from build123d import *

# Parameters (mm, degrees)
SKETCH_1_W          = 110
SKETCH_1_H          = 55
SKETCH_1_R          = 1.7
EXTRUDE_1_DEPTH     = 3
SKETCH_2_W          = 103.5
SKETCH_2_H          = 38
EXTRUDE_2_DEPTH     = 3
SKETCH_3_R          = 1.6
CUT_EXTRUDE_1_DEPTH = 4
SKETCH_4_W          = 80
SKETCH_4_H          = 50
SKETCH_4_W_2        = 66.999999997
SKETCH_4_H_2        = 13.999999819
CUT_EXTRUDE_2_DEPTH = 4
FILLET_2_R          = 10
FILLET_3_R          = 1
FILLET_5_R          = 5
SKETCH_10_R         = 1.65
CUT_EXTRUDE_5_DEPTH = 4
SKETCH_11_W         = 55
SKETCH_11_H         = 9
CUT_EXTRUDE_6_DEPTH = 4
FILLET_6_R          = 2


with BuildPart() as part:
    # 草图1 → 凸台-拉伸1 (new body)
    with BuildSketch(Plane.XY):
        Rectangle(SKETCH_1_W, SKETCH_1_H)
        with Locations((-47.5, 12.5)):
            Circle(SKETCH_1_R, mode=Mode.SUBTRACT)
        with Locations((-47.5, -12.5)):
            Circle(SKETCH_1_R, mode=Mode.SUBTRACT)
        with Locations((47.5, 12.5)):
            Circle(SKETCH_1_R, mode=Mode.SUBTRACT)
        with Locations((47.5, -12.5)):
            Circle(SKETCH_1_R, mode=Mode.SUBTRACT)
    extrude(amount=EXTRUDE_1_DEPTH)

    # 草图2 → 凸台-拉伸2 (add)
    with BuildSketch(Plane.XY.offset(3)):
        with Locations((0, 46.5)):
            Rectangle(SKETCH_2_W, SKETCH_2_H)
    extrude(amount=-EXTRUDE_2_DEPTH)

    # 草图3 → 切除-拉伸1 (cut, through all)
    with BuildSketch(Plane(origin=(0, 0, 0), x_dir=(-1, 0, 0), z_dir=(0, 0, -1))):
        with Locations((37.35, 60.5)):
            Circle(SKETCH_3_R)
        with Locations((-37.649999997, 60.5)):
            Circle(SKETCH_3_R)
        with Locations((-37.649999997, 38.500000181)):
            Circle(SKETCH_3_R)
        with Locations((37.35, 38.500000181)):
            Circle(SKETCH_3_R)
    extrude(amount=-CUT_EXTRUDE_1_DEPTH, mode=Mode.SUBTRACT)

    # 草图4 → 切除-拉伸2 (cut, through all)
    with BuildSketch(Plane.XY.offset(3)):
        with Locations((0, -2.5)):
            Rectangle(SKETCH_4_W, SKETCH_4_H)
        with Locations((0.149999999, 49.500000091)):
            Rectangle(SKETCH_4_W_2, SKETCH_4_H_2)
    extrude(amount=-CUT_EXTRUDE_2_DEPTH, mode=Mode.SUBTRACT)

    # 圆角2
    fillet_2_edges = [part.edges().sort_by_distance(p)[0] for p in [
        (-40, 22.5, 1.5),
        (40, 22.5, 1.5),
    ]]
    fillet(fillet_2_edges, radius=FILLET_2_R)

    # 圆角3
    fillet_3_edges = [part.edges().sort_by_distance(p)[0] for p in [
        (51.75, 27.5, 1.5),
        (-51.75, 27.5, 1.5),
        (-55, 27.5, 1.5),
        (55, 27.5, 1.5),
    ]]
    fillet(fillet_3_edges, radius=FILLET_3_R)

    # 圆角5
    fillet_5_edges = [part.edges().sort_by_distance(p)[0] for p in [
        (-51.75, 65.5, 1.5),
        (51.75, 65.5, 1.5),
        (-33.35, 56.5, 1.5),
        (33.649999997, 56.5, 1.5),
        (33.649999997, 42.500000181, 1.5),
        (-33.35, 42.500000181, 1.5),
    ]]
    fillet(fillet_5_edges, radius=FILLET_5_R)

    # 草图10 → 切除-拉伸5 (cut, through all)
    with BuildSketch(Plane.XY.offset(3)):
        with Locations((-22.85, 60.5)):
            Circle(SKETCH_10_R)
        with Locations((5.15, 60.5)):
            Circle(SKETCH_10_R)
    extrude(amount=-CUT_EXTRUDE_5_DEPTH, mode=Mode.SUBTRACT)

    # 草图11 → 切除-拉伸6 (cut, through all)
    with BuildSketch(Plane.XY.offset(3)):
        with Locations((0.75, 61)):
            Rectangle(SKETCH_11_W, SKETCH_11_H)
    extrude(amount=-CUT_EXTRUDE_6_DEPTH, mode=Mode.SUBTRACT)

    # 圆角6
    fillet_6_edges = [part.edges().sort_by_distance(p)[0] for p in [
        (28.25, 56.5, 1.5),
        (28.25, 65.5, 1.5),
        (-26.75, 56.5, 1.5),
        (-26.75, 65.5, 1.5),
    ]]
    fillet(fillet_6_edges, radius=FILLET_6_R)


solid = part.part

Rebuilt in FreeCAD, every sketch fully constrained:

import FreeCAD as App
import Part
import Sketcher
from FreeCAD import Vector


def edges_at(feature, points):
    """Names of the edges that pass closest to the given points."""
    edges = feature.Shape.Edges
    near = lambda p: min(range(len(edges)), key=lambda i: edges[i].distToShape(Part.Vertex(*p))[0])
    return sorted({f"Edge{near(p) + 1}" for p in points})


def add_polygon(sketch, points):
    """Adds a closed chain of lines whose ends are joined by coincident constraints."""
    first, n = sketch.GeometryCount, len(points)
    for a, b in zip(points, points[1:] + points[:1]):
        sketch.addGeometry(Part.LineSegment(App.Vector(*a, 0), App.Vector(*b, 0)), False)
    for i in range(n):
        sketch.addConstraint(Sketcher.Constraint("Coincident", first + i, 2, first + (i + 1) % n, 1))

doc = App.newDocument("Part")
body = doc.addObject("PartDesign::Body", "Body")

# Sketch on XY plane
sketch1 = body.newObject("Sketcher::SketchObject", "Sketch")
sketch1.AttachmentSupport = (doc.getObject("XY_Plane"), [""])
sketch1.MapMode = "FlatFace"
add_polygon(sketch1, [(-55, 27.5), (-55, -27.5), (55, -27.5), (55, 27.5)])  # lines 0-3
sketch1.addGeometry(Part.Circle(Vector(-47.5, -12.5, 0), Vector(0, 0, 1), 1.7), False)  # 4
sketch1.addGeometry(Part.Circle(Vector(47.5, -12.5, 0), Vector(0, 0, 1), 1.7), False)  # 5
sketch1.addGeometry(Part.Circle(Vector(-47.5, 12.5, 0), Vector(0, 0, 1), 1.7), False)  # 6
sketch1.addGeometry(Part.Circle(Vector(47.5, 12.5, 0), Vector(0, 0, 1), 1.7), False)  # 7
sketch1.addConstraint([
    Sketcher.Constraint("Vertical", 0),
    Sketcher.Constraint("Horizontal", 1),
    Sketcher.Constraint("Vertical", 2),
    Sketcher.Constraint("Horizontal", 3),
    Sketcher.Constraint("Equal", 4, 5),
    Sketcher.Constraint("Equal", 5, 6),
    Sketcher.Constraint("Equal", 6, 7),
    Sketcher.Constraint("Symmetric", 5, 3, 6, 3, -1, 1),
    Sketcher.Constraint("Symmetric", 4, 3, 7, 3, -1, 1),
    Sketcher.Constraint("Symmetric", 0, 2, 2, 2, -1, 1),
    Sketcher.Constraint("Symmetric", 4, 3, 5, 3, -2),
    Sketcher.Constraint("Diameter", 4, 3.4),
    Sketcher.Constraint("DistanceX", 1, 1, 1, 2, 110.0),
    Sketcher.Constraint("DistanceY", 0, 2, 0, 1, 55.0),
    Sketcher.Constraint("DistanceX", 4, 3, 5, 3, 95.0),
    Sketcher.Constraint("DistanceY", 4, 3, 6, 3, 25.0),
])
pad1 = body.newObject("PartDesign::Pad", "Pad")
pad1.Profile = sketch1
pad1.Length = 3

# Sketch on XY plane
sketch2 = body.newObject("Sketcher::SketchObject", "Sketch001")
sketch2.AttachmentSupport = (doc.getObject("XY_Plane"), [""])
sketch2.MapMode = "FlatFace"
sketch2.AttachmentOffset = App.Placement(Vector(0, 0, 3), App.Rotation())
add_polygon(sketch2, [(-52, 66), (-52, 28), (52, 28), (52, 66)])  # lines 0-3
sketch2.addConstraint([
    Sketcher.Constraint("Vertical", 0),
    Sketcher.Constraint("Horizontal", 1),
    Sketcher.Constraint("Vertical", 2),
    Sketcher.Constraint("Horizontal", 3),
    Sketcher.Constraint("DistanceY", 0, 2, 0, 1, 38.0),
    Sketcher.Constraint("DistanceX", 1, 1, 1, 2, 103.5),
    Sketcher.Constraint("DistanceY", -1, 1, 0, 2, 27.5),
    Sketcher.Constraint("DistanceX", 0, 2, -1, 1, 51.75),
])
pad2 = body.newObject("PartDesign::Pad", "Pad001")
pad2.Profile = sketch2
pad2.Length = 3
pad2.Reversed = True

# Sketch on XY plane
sketch3 = body.newObject("Sketcher::SketchObject", "Sketch002")
sketch3.AttachmentSupport = (doc.getObject("XY_Plane"), [""])
sketch3.MapMode = "FlatFace"
sketch3.addGeometry([
    Part.Circle(Vector(-37.4, 60.5, 0), Vector(0, 0, 1), 1.6),
    Part.Circle(Vector(37.6, 60.5, 0), Vector(0, 0, 1), 1.6),
    Part.Circle(Vector(37.6, 38.5, 0), Vector(0, 0, 1), 1.6),
    Part.Circle(Vector(-37.4, 38.5, 0), Vector(0, 0, 1), 1.6),
], False)
sketch3.addConstraint([
    Sketcher.Constraint("Equal", 0, 1),
    Sketcher.Constraint("Equal", 1, 2),
    Sketcher.Constraint("Equal", 2, 3),
    Sketcher.Constraint("Horizontal", 0, 3, 1, 3),
    Sketcher.Constraint("Horizontal", 2, 3, 3, 3),
    Sketcher.Constraint("Vertical", 1, 3, 2, 3),
    Sketcher.Constraint("Vertical", 0, 3, 3, 3),
    Sketcher.Constraint("Diameter", 0, 3.2),
    Sketcher.Constraint("DistanceX", 0, 3, 1, 3, 75.0),
    Sketcher.Constraint("DistanceY", 2, 3, 1, 3, 22.0),
    Sketcher.Constraint("DistanceY", -1, 1, 0, 3, 60.5),
    Sketcher.Constraint("DistanceX", 0, 3, -1, 1, 37.35),
])
pocket1 = body.newObject("PartDesign::Pocket", "Pocket")
pocket1.Profile = sketch3
pocket1.Type = "ThroughAll"
pocket1.Reversed = True

# Sketch on XY plane
sketch4 = body.newObject("Sketcher::SketchObject", "Sketch003")
sketch4.AttachmentSupport = (doc.getObject("XY_Plane"), [""])
sketch4.MapMode = "FlatFace"
sketch4.AttachmentOffset = App.Placement(Vector(0, 0, 3), App.Rotation())
add_polygon(sketch4, [(-40, 22), (-40, -28), (40, -28), (40, 22)])  # lines 0-3
add_polygon(sketch4, [(-33, 56), (-33, 43), (34, 43), (34, 56)])  # lines 4-7
sketch4.addConstraint([
    Sketcher.Constraint("Vertical", 0),
    Sketcher.Constraint("Horizontal", 1),
    Sketcher.Constraint("Vertical", 2),
    Sketcher.Constraint("Horizontal", 3),
    Sketcher.Constraint("Vertical", 4),
    Sketcher.Constraint("Horizontal", 5),
    Sketcher.Constraint("Vertical", 6),
    Sketcher.Constraint("Horizontal", 7),
    Sketcher.Constraint("DistanceX", 1, 1, 1, 2, 80.0),
    Sketcher.Constraint("DistanceX", 5, 1, 5, 2, 67.0),
    Sketcher.Constraint("DistanceY", 0, 2, 0, 1, 50.0),
    Sketcher.Constraint("DistanceY", 4, 2, 4, 1, 14.0),
    Sketcher.Constraint("DistanceX", 0, 2, -1, 1, 40.0),
    Sketcher.Constraint("DistanceY", 3, 2, 4, 2, 20.0),
    Sketcher.Constraint("DistanceY", 0, 2, -1, 1, 27.5),
    Sketcher.Constraint("DistanceX", 4, 2, -1, 1, 33.35),
])
pocket2 = body.newObject("PartDesign::Pocket", "Pocket001")
pocket2.Profile = sketch4
pocket2.Type = "ThroughAll"
doc.recompute()

fillet = body.newObject("PartDesign::Fillet", "Fillet")
fillet.Base = (pocket2, edges_at(pocket2, [(-40, 22.5, 1.5), (40, 22.5, 1.5)]))
fillet.Radius = 10
doc.recompute()

fillet2 = body.newObject("PartDesign::Fillet", "Fillet001")
fillet2.Base = (fillet, edges_at(fillet, [
    (51.75, 27.5, 1.5),
    (-51.75, 27.5, 1.5),
    (-55, 27.5, 1.5),
    (55, 27.5, 1.5),
]))
fillet2.Radius = 1
doc.recompute()

fillet3 = body.newObject("PartDesign::Fillet", "Fillet002")
fillet3.Base = (fillet2, edges_at(fillet2, [
    (-51.75, 65.5, 1.5),
    (51.75, 65.5, 1.5),
    (-33.35, 56.5, 1.5),
    (33.65, 56.5, 1.5),
    (33.65, 42.5, 1.5),
    (-33.35, 42.5, 1.5),
]))
fillet3.Radius = 5

# Sketch on XY plane
sketch5 = body.newObject("Sketcher::SketchObject", "Sketch004")
sketch5.AttachmentSupport = (doc.getObject("XY_Plane"), [""])
sketch5.MapMode = "FlatFace"
sketch5.AttachmentOffset = App.Placement(Vector(0, 0, 3), App.Rotation())
sketch5.addGeometry([
    Part.Circle(Vector(-22.9, 60.5, 0), Vector(0, 0, 1), 1.6),
    Part.Circle(Vector(5.2, 60.5, 0), Vector(0, 0, 1), 1.6),
], False)
sketch5.addConstraint([
    Sketcher.Constraint("Equal", 0, 1),
    Sketcher.Constraint("Horizontal", 0, 3, 1, 3),
    Sketcher.Constraint("Diameter", 0, 3.3),
    Sketcher.Constraint("DistanceX", 0, 3, 1, 3, 28.0),
    Sketcher.Constraint("DistanceY", -1, 1, 0, 3, 60.5),
    Sketcher.Constraint("DistanceX", 0, 3, -1, 1, 22.85),
])
pocket3 = body.newObject("PartDesign::Pocket", "Pocket002")
pocket3.Profile = sketch5
pocket3.Type = "ThroughAll"

# Sketch on XY plane
sketch6 = body.newObject("Sketcher::SketchObject", "Sketch005")
sketch6.AttachmentSupport = (doc.getObject("XY_Plane"), [""])
sketch6.MapMode = "FlatFace"
sketch6.AttachmentOffset = App.Placement(Vector(0, 0, 3), App.Rotation())
add_polygon(sketch6, [(-27, 66), (-27, 56), (28, 56), (28, 66)])  # lines 0-3
sketch6.addConstraint([
    Sketcher.Constraint("Vertical", 0),
    Sketcher.Constraint("Horizontal", 1),
    Sketcher.Constraint("Vertical", 2),
    Sketcher.Constraint("Horizontal", 3),
    Sketcher.Constraint("DistanceX", 1, 1, 1, 2, 55.0),
    Sketcher.Constraint("DistanceY", 0, 2, 0, 1, 9.0),
    Sketcher.Constraint("DistanceY", -1, 1, 0, 2, 56.5),
    Sketcher.Constraint("DistanceX", 0, 2, -1, 1, 26.75),
])
pocket4 = body.newObject("PartDesign::Pocket", "Pocket003")
pocket4.Profile = sketch6
pocket4.Type = "ThroughAll"
doc.recompute()

fillet4 = body.newObject("PartDesign::Fillet", "Fillet003")
fillet4.Base = (pocket4, edges_at(pocket4, [
    (28.25, 56.5, 1.5),
    (28.25, 65.5, 1.5),
    (-26.75, 56.5, 1.5),
    (-26.75, 65.5, 1.5),
]))
fillet4.Radius = 2

doc.recompute()
